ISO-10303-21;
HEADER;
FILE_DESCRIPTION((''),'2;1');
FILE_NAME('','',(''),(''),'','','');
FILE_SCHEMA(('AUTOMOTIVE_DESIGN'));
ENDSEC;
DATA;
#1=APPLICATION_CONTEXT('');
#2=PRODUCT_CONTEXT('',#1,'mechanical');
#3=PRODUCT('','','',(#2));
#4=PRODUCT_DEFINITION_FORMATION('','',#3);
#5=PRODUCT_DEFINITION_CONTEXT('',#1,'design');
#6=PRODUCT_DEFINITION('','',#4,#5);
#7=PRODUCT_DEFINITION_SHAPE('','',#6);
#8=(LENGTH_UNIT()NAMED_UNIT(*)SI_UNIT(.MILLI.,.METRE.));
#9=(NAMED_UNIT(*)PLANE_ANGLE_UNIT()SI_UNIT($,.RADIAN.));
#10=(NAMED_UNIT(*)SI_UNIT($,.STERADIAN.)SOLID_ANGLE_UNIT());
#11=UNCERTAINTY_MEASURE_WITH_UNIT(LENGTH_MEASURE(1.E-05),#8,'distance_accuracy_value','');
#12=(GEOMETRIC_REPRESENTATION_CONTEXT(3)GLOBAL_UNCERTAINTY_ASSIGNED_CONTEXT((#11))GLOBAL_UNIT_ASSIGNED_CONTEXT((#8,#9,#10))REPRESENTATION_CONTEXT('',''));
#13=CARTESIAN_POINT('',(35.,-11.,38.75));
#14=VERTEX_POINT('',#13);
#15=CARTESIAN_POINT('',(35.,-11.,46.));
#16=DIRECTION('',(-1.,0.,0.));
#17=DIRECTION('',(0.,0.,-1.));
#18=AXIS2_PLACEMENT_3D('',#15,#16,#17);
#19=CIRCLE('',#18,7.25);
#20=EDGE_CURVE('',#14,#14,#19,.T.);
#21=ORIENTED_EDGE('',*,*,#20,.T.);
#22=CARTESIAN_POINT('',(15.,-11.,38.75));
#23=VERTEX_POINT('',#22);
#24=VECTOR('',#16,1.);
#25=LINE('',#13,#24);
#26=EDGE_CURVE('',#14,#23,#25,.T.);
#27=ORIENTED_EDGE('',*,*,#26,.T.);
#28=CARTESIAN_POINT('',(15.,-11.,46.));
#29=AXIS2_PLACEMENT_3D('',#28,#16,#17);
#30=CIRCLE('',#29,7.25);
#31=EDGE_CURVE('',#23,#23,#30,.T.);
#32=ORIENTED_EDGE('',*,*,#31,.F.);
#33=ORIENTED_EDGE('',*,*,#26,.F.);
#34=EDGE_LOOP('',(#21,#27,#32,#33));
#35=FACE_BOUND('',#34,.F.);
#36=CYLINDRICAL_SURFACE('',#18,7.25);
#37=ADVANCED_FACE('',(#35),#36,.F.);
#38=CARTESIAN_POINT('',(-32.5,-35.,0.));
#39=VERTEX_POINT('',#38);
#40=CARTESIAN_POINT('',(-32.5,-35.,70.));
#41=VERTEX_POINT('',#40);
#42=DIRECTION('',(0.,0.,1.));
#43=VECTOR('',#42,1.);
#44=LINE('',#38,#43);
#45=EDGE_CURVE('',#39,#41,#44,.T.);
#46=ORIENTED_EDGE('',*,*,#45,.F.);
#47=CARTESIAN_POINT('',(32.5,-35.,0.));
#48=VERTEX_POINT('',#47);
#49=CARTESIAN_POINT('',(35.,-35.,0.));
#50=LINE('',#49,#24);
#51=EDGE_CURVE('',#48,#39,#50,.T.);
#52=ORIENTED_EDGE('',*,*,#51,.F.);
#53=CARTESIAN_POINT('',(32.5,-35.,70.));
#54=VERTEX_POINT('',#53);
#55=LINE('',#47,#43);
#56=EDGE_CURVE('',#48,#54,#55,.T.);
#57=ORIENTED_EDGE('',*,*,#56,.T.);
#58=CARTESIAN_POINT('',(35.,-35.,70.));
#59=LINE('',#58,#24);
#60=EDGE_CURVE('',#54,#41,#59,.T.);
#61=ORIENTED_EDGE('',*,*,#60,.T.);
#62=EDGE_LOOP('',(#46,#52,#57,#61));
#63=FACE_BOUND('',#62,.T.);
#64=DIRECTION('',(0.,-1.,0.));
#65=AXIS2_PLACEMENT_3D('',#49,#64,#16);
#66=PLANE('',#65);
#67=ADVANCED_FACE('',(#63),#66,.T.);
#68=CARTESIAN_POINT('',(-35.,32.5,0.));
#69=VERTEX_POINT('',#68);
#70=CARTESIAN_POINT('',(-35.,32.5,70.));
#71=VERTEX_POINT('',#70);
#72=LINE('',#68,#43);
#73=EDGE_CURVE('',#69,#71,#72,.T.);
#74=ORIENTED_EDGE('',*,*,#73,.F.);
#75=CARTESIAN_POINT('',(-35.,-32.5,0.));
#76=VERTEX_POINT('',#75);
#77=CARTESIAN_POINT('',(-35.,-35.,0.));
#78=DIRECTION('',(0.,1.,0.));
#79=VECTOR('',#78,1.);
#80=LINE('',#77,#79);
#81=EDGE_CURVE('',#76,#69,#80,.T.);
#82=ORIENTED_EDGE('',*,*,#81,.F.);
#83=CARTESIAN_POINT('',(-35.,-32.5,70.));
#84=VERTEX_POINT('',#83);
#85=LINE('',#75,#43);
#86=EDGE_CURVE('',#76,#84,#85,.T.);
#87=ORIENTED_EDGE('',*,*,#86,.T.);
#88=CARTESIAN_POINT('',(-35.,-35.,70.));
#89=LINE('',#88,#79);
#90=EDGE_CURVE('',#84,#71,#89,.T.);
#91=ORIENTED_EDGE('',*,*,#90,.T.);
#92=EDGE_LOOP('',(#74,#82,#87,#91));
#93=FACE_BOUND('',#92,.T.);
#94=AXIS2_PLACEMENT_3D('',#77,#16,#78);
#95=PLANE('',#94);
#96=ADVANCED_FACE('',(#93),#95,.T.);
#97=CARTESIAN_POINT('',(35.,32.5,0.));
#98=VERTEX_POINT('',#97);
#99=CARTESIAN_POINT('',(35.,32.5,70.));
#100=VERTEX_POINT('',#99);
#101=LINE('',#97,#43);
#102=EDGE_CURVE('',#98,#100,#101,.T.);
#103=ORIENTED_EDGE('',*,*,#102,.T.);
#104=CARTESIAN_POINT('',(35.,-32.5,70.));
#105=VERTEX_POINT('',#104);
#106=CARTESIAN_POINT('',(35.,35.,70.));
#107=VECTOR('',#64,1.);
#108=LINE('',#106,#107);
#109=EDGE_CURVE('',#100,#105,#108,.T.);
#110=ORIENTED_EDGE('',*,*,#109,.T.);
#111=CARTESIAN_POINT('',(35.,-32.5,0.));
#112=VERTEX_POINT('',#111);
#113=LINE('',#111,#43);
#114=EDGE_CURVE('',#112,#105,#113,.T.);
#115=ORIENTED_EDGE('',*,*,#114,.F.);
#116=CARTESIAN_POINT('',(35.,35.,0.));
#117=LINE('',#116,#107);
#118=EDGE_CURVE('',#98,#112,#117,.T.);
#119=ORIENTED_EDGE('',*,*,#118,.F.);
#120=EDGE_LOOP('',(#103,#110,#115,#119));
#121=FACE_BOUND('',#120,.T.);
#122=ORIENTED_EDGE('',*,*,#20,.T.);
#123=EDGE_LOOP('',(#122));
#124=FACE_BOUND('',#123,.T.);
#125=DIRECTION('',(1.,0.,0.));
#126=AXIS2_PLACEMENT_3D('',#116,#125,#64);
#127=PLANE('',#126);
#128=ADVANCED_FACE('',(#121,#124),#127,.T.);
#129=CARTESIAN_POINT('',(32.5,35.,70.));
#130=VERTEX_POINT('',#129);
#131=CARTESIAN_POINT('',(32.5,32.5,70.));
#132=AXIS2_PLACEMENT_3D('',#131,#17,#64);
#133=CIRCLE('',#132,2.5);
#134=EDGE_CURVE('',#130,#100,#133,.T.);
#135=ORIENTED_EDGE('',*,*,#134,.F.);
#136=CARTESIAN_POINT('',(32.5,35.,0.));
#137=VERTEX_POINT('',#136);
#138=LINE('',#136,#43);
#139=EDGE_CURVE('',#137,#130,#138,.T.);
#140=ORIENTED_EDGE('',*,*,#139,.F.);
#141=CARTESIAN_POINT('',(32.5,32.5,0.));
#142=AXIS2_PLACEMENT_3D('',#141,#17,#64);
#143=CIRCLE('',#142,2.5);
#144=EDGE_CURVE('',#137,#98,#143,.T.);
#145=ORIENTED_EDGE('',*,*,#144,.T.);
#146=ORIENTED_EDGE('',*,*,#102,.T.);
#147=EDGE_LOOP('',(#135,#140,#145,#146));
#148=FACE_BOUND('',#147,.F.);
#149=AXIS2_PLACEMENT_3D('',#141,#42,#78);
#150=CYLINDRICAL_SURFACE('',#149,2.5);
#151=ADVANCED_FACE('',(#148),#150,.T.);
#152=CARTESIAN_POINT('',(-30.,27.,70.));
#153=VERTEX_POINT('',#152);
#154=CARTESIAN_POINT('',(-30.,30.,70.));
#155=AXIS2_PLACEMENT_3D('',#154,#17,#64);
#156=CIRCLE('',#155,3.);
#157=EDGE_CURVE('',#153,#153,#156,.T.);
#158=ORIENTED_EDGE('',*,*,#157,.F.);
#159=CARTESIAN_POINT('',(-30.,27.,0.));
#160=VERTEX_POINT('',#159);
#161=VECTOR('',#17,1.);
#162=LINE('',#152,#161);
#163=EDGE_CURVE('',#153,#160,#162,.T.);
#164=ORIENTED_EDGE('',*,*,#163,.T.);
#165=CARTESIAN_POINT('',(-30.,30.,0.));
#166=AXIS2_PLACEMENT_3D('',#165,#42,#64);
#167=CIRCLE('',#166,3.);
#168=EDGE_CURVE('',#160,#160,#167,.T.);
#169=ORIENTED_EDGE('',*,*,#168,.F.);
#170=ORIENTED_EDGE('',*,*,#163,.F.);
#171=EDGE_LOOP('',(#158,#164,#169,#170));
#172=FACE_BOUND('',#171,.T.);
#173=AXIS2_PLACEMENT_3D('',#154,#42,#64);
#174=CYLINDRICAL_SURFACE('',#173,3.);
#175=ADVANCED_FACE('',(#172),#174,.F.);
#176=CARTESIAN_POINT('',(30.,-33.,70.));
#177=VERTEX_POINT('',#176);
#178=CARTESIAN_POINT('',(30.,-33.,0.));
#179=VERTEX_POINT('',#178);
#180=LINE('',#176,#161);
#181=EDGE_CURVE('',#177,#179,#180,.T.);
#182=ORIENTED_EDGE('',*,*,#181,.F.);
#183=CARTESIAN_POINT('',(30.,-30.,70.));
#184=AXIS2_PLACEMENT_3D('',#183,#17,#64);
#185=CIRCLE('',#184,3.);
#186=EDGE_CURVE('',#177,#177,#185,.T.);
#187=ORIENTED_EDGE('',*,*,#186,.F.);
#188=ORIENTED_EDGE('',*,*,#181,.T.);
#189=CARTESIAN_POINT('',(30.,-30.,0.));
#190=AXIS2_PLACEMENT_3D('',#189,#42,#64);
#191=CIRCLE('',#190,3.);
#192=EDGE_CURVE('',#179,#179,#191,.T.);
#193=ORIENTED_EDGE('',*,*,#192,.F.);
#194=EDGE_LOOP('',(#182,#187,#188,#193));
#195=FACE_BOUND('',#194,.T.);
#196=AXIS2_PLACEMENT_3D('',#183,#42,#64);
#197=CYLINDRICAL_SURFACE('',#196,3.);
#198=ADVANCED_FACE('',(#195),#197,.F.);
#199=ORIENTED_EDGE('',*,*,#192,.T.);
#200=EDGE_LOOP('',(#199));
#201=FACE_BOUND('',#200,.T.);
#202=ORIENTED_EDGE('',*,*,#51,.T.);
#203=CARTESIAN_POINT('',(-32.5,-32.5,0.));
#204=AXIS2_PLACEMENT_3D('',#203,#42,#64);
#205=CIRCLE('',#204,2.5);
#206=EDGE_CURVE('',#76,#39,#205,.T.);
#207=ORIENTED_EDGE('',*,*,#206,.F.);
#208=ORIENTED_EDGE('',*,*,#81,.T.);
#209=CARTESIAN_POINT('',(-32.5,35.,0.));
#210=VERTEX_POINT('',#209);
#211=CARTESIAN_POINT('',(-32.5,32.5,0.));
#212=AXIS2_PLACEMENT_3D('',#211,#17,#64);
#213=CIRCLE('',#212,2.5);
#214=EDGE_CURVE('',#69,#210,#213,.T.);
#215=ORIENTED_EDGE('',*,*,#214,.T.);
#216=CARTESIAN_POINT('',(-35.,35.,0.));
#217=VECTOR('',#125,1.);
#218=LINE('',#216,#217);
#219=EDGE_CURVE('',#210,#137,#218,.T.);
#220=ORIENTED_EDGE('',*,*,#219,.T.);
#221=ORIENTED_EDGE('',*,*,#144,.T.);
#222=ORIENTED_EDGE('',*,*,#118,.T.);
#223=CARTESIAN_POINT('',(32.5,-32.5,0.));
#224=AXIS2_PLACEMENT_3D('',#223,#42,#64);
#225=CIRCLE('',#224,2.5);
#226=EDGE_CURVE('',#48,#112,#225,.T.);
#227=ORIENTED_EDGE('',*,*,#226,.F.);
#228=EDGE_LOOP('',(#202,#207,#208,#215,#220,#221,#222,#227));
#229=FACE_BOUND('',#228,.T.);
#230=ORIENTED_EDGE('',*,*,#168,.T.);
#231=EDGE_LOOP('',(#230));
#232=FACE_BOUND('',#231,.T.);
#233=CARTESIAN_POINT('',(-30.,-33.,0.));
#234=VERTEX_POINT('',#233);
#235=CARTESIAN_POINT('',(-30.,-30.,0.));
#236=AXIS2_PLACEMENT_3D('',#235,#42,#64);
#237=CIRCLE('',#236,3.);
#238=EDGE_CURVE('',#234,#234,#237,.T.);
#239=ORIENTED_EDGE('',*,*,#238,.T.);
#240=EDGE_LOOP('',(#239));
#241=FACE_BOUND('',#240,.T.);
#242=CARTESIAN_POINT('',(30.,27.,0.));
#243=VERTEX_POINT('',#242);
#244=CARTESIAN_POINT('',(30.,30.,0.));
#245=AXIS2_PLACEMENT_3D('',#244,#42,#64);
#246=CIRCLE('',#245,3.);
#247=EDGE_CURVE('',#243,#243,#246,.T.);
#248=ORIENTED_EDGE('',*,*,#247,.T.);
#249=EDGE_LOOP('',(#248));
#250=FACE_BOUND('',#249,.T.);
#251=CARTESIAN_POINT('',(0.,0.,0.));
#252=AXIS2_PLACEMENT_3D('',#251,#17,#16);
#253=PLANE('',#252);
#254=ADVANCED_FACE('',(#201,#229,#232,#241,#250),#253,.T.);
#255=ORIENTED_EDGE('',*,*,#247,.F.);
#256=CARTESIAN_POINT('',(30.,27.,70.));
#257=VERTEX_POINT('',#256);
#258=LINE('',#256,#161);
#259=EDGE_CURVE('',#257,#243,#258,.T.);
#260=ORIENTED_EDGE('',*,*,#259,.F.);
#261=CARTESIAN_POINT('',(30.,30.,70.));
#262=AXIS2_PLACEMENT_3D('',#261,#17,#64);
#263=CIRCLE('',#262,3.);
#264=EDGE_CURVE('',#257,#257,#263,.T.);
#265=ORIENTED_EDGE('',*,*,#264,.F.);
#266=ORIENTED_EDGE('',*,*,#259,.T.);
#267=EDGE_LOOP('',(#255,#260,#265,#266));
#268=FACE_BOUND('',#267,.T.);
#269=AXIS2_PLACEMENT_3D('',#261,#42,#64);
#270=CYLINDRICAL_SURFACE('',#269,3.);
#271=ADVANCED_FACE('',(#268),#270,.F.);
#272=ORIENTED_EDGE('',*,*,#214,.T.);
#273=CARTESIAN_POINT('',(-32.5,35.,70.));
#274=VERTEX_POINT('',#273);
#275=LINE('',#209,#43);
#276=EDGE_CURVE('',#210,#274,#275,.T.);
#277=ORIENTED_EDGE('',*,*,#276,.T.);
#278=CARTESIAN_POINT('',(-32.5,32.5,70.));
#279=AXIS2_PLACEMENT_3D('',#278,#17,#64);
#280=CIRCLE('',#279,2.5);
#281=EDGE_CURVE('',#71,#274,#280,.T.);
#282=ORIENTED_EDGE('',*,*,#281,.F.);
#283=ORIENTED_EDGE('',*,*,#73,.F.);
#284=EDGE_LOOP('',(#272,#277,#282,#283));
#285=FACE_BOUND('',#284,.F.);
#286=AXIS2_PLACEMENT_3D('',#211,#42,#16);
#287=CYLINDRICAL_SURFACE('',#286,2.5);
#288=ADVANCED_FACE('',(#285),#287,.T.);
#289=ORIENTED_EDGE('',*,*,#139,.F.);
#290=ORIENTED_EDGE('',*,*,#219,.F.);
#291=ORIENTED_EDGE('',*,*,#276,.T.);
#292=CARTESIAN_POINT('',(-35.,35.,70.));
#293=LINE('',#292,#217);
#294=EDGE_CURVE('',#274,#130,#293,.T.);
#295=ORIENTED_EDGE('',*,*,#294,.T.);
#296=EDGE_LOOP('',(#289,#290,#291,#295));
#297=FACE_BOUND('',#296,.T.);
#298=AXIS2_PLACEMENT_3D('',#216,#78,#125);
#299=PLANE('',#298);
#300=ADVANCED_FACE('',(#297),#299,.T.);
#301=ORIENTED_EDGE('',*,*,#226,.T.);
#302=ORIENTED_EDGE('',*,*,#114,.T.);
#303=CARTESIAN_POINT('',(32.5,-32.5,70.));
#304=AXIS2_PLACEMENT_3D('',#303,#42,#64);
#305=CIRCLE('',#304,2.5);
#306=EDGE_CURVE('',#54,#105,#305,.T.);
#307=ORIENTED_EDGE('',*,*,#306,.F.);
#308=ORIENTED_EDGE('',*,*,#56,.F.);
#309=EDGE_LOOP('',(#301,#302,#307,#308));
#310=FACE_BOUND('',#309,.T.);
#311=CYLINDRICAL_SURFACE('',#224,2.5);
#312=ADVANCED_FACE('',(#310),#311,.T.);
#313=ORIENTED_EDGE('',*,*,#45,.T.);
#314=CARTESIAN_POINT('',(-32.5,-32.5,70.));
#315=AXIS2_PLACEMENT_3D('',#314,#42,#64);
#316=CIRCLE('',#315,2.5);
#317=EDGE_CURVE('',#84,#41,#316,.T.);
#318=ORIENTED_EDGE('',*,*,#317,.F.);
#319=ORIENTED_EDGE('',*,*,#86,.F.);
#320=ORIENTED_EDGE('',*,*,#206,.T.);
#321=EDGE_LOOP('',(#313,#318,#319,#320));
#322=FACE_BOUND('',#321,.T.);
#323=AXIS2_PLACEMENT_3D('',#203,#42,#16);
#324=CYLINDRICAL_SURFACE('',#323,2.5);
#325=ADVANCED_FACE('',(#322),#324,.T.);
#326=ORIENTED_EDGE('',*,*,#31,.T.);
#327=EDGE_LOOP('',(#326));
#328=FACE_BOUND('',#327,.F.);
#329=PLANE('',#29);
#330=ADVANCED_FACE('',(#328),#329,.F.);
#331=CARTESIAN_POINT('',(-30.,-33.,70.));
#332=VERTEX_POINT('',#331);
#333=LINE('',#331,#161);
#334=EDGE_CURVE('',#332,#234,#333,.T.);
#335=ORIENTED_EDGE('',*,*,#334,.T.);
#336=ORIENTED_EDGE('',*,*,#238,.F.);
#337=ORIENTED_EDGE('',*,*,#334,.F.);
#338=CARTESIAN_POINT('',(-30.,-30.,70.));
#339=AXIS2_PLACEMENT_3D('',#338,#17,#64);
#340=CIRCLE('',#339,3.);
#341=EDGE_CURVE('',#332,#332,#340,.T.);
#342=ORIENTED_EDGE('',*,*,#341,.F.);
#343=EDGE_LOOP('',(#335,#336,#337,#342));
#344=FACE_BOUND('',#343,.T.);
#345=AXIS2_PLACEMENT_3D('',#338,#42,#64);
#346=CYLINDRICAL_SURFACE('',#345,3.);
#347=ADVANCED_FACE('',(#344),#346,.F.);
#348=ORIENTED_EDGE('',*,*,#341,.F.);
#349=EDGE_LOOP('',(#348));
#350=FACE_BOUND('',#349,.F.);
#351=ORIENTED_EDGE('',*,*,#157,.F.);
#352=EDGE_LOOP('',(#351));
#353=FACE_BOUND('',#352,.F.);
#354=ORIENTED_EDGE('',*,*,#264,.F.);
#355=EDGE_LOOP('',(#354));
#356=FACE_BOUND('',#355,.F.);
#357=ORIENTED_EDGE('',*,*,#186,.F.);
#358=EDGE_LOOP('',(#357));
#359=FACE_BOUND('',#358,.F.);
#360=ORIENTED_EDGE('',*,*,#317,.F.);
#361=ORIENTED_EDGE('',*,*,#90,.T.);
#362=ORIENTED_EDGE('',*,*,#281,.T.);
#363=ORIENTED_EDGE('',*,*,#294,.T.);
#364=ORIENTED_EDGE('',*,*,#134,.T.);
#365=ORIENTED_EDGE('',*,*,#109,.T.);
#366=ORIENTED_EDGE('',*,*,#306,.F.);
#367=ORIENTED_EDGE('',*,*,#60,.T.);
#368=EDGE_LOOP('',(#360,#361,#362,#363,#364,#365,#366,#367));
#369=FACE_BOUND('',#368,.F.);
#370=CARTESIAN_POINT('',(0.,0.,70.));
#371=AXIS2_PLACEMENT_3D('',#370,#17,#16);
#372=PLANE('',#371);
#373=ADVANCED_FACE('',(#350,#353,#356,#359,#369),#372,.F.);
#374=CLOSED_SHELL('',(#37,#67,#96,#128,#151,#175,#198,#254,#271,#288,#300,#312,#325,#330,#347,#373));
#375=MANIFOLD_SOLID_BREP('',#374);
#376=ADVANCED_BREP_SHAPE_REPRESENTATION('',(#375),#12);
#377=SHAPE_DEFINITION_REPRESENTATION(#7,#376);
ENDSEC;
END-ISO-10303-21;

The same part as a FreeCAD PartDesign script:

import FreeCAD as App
import Part
import Sketcher
Q = App.Units.Quantity


def edges_at(feature, points):
    """Names of the edges that pass closest to the given points."""
    edges = feature.Shape.Edges
    near = lambda p: min(range(len(edges)), key=lambda i: edges[i].distToShape(Part.Vertex(*p))[0])
    return sorted({f"Edge{near(p) + 1}" for p in points})

doc = App.newDocument("Part")
body = doc.addObject("PartDesign::Body", "Body")

sketch1 = doc.addObject("Sketcher::SketchObject", "Sketch")
body.addObject(sketch1)
sketch1.AttachmentSupport = (doc.XY_Plane, [""])
sketch1.MapMode = "FlatFace"
sketch1.addGeometry(Part.LineSegment(App.Vector(-35, 35, 0), App.Vector(-35, -35, 0)), False)
sketch1.addGeometry(Part.LineSegment(App.Vector(-35, -35, 0), App.Vector(35, -35, 0)), False)
sketch1.addGeometry(Part.LineSegment(App.Vector(35, -35, 0), App.Vector(35, 35, 0)), False)
sketch1.addGeometry(Part.LineSegment(App.Vector(35, 35, 0), App.Vector(-35, 35, 0)), False)
sketch1.addConstraint(Sketcher.Constraint("Coincident", 0, 2, 1, 1))
sketch1.addConstraint(Sketcher.Constraint("Coincident", 1, 2, 2, 1))
sketch1.addConstraint(Sketcher.Constraint("Coincident", 2, 2, 3, 1))
sketch1.addConstraint(Sketcher.Constraint("Coincident", 3, 2, 0, 1))
sketch1.addConstraint(Sketcher.Constraint("Vertical", 0))
sketch1.addConstraint(Sketcher.Constraint("Horizontal", 1))
sketch1.addConstraint(Sketcher.Constraint("Vertical", 2))
sketch1.addConstraint(Sketcher.Constraint("Horizontal", 3))
sketch1.addConstraint(Sketcher.Constraint("Symmetric", 0, 2, 2, 2, -1, 1))
sketch1.addConstraint(Sketcher.Constraint("Equal", 3, 0))
sketch1.addConstraint(Sketcher.Constraint("DistanceX", 1, 1, 1, 2, Q("70 mm")))
pad1 = doc.addObject("PartDesign::Pad", "Pad")
body.addObject(pad1)
pad1.Profile = sketch1
pad1.Length = 70

sketch2 = doc.addObject("Sketcher::SketchObject", "Sketch001")
body.addObject(sketch2)
sketch2.AttachmentSupport = (doc.XY_Plane, [""])
sketch2.MapMode = "FlatFace"
sketch2.AttachmentOffset = App.Placement(App.Vector(0, 0, 70), App.Rotation())
sketch2.addGeometry(Part.Circle(App.Vector(-30, -30, 0), App.Vector(0, 0, 1), 3), False)
sketch2.addConstraint(Sketcher.Constraint("Diameter", 0, Q("6 mm")))
sketch2.addConstraint(Sketcher.Constraint("DistanceX", 0, 3, -1, 1, Q("30 mm")))
sketch2.addConstraint(Sketcher.Constraint("DistanceY", 0, 3, -1, 1, Q("30 mm")))
doc.recompute()
hole = doc.addObject("PartDesign::Hole", "Hole")
body.addObject(hole)
hole.Profile = sketch2
hole.ThreadType = "None"
hole.Diameter = 6
hole.DepthType = "ThroughAll"

sketch3 = doc.addObject("Sketcher::SketchObject", "Sketch002")
body.addObject(sketch3)
sketch3.AttachmentSupport = (doc.XY_Plane, [""])
sketch3.MapMode = "FlatFace"
sketch3.AttachmentOffset = App.Placement(App.Vector(0, 0, 70), App.Rotation())
sketch3.addGeometry(Part.Circle(App.Vector(-30, 30, 0), App.Vector(0, 0, 1), 3), False)
sketch3.addConstraint(Sketcher.Constraint("Diameter", 0, Q("6 mm")))
sketch3.addConstraint(Sketcher.Constraint("DistanceX", 0, 3, -1, 1, Q("30 mm")))
sketch3.addConstraint(Sketcher.Constraint("DistanceY", -1, 1, 0, 3, Q("30 mm")))
doc.recompute()
hole2 = doc.addObject("PartDesign::Hole", "Hole001")
body.addObject(hole2)
hole2.Profile = sketch3
hole2.ThreadType = "None"
hole2.Diameter = 6
hole2.DepthType = "ThroughAll"

sketch4 = doc.addObject("Sketcher::SketchObject", "Sketch003")
body.addObject(sketch4)
sketch4.AttachmentSupport = (doc.XY_Plane, [""])
sketch4.MapMode = "FlatFace"
sketch4.AttachmentOffset = App.Placement(App.Vector(0, 0, 70), App.Rotation())
sketch4.addGeometry(Part.Circle(App.Vector(30, 30, 0), App.Vector(0, 0, 1), 3), False)
sketch4.addConstraint(Sketcher.Constraint("Diameter", 0, Q("6 mm")))
sketch4.addConstraint(Sketcher.Constraint("DistanceX", -1, 1, 0, 3, Q("30 mm")))
sketch4.addConstraint(Sketcher.Constraint("DistanceY", -1, 1, 0, 3, Q("30 mm")))
doc.recompute()
hole3 = doc.addObject("PartDesign::Hole", "Hole002")
body.addObject(hole3)
hole3.Profile = sketch4
hole3.ThreadType = "None"
hole3.Diameter = 6
hole3.DepthType = "ThroughAll"

sketch5 = doc.addObject("Sketcher::SketchObject", "Sketch004")
body.addObject(sketch5)
sketch5.AttachmentSupport = (doc.XY_Plane, [""])
sketch5.MapMode = "FlatFace"
sketch5.AttachmentOffset = App.Placement(App.Vector(0, 0, 70), App.Rotation())
sketch5.addGeometry(Part.Circle(App.Vector(30, -30, 0), App.Vector(0, 0, 1), 3), False)
sketch5.addConstraint(Sketcher.Constraint("Diameter", 0, Q("6 mm")))
sketch5.addConstraint(Sketcher.Constraint("DistanceX", -1, 1, 0, 3, Q("30 mm")))
sketch5.addConstraint(Sketcher.Constraint("DistanceY", 0, 3, -1, 1, Q("30 mm")))
doc.recompute()
hole4 = doc.addObject("PartDesign::Hole", "Hole003")
body.addObject(hole4)
hole4.Profile = sketch5
hole4.ThreadType = "None"
hole4.Diameter = 6
hole4.DepthType = "ThroughAll"

sketch6 = doc.addObject("Sketcher::SketchObject", "Sketch005")
body.addObject(sketch6)
sketch6.AttachmentSupport = (doc.YZ_Plane, [""])
sketch6.MapMode = "FlatFace"
sketch6.AttachmentOffset = App.Placement(App.Vector(0, 0, 35), App.Rotation())
sketch6.addGeometry(Part.Circle(App.Vector(-11, 46, 0), App.Vector(0, 0, 1), 7), False)
sketch6.addConstraint(Sketcher.Constraint("Diameter", 0, Q("14.5 mm")))
sketch6.addConstraint(Sketcher.Constraint("DistanceX", 0, 3, -1, 1, Q("11 mm")))
sketch6.addConstraint(Sketcher.Constraint("DistanceY", -1, 1, 0, 3, Q("46 mm")))
doc.recompute()
hole5 = doc.addObject("PartDesign::Hole", "Hole004")
body.addObject(hole5)
hole5.Profile = sketch6
hole5.ThreadType = "None"
hole5.Diameter = 14.5
hole5.DepthType = "Dimension"
hole5.Depth = 20
hole5.DrillPoint = "Flat"
doc.recompute()

fillet = doc.addObject("PartDesign::Fillet", "Fillet")
body.addObject(fillet)
fillet.Base = (hole5, edges_at(hole5, [
    (35, -35, 35),
    (35, 35, 35),
    (-35, 35, 35),
    (-35, -35, 35),
]))
fillet.Radius = 2.5

doc.recompute()
